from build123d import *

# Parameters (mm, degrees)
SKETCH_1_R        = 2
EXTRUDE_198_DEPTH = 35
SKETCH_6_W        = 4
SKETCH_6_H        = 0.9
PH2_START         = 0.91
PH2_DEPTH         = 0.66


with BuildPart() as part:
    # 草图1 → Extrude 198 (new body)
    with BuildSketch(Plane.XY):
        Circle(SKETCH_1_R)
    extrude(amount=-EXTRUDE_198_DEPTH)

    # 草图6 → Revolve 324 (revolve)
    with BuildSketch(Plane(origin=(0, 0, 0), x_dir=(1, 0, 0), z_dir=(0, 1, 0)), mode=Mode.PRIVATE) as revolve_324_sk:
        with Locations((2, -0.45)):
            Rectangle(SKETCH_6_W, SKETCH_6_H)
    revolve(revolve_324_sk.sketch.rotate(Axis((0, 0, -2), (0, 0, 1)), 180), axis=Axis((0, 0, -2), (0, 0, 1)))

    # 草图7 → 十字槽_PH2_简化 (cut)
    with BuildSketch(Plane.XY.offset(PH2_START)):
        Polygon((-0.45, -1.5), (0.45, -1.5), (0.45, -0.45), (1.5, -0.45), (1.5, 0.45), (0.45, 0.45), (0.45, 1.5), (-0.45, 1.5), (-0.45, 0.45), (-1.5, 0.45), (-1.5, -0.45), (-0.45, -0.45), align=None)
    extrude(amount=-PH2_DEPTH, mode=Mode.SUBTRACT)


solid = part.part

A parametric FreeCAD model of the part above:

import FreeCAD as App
import Part
import Sketcher
from FreeCAD import Vector


def add_polygon(sketch, points):
    """Adds a closed chain of lines whose ends are joined by coincident constraints."""
    first, n = sketch.GeometryCount, len(points)
    for a, b in zip(points, points[1:] + points[:1]):
        sketch.addGeometry(Part.LineSegment(App.Vector(*a, 0), App.Vector(*b, 0)), False)
    for i in range(n):
        sketch.addConstraint(Sketcher.Constraint("Coincident", first + i, 2, first + (i + 1) % n, 1))

doc = App.newDocument("Part")
body = doc.addObject("PartDesign::Body", "Body")

# Sketch on XY plane
sketch1 = doc.addObject("Sketcher::SketchObject", "Sketch")
body.addObject(sketch1)
sketch1.AttachmentSupport = (doc.XY_Plane, [""])
sketch1.MapMode = "FlatFace"
sketch1.addGeometry(Part.Circle(Vector(0, 0, 0), Vector(0, 0, 1), 2), False)
sketch1.addConstraint([
    Sketcher.Constraint("Coincident", 0, 3, -1, 1),
    Sketcher.Constraint("Diameter", 0, 4.0),
])
pad1 = doc.addObject("PartDesign::Pad", "Pad")
body.addObject(pad1)
pad1.Profile = sketch1
pad1.Length = 35
pad1.Reversed = True

# Sketch on XZ plane
sketch2 = doc.addObject("Sketcher::SketchObject", "Sketch001")
body.addObject(sketch2)
sketch2.AttachmentSupport = (doc.XZ_Plane, [""])
sketch2.MapMode = "FlatFace"
add_polygon(sketch2, [(0, 0), (0, 0.9), (4, 0.9), (4, 0)])  # lines 0-3
sketch2.addConstraint([
    Sketcher.Constraint("Vertical", 0),
    Sketcher.Constraint("Horizontal", 1),
    Sketcher.Constraint("Vertical", 2),
    Sketcher.Constraint("Horizontal", 3),
    Sketcher.Constraint("Coincident", 3, 2, -1, 1),
    Sketcher.Constraint("DistanceX", 1, 1, 1, 2, 4.0),
    Sketcher.Constraint("DistanceY", 0, 1, 0, 2, 0.9),
])
revolution = doc.addObject("PartDesign::Revolution", "Revolution")
body.addObject(revolution)
revolution.Profile = sketch2
revolution.ReferenceAxis = (sketch2, ["V_Axis"])
revolution.Angle = 360

# Sketch on XY plane
sketch3 = doc.addObject("Sketcher::SketchObject", "Sketch002")
body.addObject(sketch3)
sketch3.AttachmentSupport = (doc.XY_Plane, [""])
sketch3.MapMode = "FlatFace"
sketch3.AttachmentOffset = App.Placement(Vector(0, 0, 0.91), App.Rotation())
add_polygon(sketch3, [(-0.5, -1.5), (0.5, -1.5), (0.5, -0.5), (1.5, -0.5), (1.5, 0.5), (0.5, 0.5), (0.5, 1.5), (-0.5, 1.5), (-0.5, 0.5), (-1.5, 0.5), (-1.5, -0.5), (-0.5, -0.5)])  # lines 0-11
sketch3.addConstraint([
    Sketcher.Constraint("Horizontal", 0),
    Sketcher.Constraint("Vertical", 1),
    Sketcher.Constraint("Horizontal", 2),
    Sketcher.Constraint("Vertical", 3),
    Sketcher.Constraint("Horizontal", 4),
    Sketcher.Constraint("Vertical", 5),
    Sketcher.Constraint("Horizontal", 6),
    Sketcher.Constraint("Vertical", 7),
    Sketcher.Constraint("Horizontal", 8),
    Sketcher.Constraint("Vertical", 9),
    Sketcher.Constraint("Horizontal", 10),
    Sketcher.Constraint("Vertical", 11),
    Sketcher.Constraint("Symmetric", 0, 2, 6, 2, -1, 1),
    Sketcher.Constraint("Symmetric", 2, 2, 8, 2, -1, 1),
    Sketcher.Constraint("Symmetric", 4, 2, 10, 2, -1, 1),
    Sketcher.Constraint("Symmetric", 4, 2, 7, 2, -2),
    Sketcher.Constraint("Equal", 10, 1),
    Sketcher.Constraint("Equal", 6, 3),
    Sketcher.Constraint("DistanceX", 0, 1, 0, 2, 0.9),
    Sketcher.Constraint("DistanceY", 0, 2, 5, 2, 3.0),
])
pocket1 = doc.addObject("PartDesign::Pocket", "Pocket")
body.addObject(pocket1)
pocket1.Profile = sketch3
pocket1.Length = 0.66

doc.recompute()
